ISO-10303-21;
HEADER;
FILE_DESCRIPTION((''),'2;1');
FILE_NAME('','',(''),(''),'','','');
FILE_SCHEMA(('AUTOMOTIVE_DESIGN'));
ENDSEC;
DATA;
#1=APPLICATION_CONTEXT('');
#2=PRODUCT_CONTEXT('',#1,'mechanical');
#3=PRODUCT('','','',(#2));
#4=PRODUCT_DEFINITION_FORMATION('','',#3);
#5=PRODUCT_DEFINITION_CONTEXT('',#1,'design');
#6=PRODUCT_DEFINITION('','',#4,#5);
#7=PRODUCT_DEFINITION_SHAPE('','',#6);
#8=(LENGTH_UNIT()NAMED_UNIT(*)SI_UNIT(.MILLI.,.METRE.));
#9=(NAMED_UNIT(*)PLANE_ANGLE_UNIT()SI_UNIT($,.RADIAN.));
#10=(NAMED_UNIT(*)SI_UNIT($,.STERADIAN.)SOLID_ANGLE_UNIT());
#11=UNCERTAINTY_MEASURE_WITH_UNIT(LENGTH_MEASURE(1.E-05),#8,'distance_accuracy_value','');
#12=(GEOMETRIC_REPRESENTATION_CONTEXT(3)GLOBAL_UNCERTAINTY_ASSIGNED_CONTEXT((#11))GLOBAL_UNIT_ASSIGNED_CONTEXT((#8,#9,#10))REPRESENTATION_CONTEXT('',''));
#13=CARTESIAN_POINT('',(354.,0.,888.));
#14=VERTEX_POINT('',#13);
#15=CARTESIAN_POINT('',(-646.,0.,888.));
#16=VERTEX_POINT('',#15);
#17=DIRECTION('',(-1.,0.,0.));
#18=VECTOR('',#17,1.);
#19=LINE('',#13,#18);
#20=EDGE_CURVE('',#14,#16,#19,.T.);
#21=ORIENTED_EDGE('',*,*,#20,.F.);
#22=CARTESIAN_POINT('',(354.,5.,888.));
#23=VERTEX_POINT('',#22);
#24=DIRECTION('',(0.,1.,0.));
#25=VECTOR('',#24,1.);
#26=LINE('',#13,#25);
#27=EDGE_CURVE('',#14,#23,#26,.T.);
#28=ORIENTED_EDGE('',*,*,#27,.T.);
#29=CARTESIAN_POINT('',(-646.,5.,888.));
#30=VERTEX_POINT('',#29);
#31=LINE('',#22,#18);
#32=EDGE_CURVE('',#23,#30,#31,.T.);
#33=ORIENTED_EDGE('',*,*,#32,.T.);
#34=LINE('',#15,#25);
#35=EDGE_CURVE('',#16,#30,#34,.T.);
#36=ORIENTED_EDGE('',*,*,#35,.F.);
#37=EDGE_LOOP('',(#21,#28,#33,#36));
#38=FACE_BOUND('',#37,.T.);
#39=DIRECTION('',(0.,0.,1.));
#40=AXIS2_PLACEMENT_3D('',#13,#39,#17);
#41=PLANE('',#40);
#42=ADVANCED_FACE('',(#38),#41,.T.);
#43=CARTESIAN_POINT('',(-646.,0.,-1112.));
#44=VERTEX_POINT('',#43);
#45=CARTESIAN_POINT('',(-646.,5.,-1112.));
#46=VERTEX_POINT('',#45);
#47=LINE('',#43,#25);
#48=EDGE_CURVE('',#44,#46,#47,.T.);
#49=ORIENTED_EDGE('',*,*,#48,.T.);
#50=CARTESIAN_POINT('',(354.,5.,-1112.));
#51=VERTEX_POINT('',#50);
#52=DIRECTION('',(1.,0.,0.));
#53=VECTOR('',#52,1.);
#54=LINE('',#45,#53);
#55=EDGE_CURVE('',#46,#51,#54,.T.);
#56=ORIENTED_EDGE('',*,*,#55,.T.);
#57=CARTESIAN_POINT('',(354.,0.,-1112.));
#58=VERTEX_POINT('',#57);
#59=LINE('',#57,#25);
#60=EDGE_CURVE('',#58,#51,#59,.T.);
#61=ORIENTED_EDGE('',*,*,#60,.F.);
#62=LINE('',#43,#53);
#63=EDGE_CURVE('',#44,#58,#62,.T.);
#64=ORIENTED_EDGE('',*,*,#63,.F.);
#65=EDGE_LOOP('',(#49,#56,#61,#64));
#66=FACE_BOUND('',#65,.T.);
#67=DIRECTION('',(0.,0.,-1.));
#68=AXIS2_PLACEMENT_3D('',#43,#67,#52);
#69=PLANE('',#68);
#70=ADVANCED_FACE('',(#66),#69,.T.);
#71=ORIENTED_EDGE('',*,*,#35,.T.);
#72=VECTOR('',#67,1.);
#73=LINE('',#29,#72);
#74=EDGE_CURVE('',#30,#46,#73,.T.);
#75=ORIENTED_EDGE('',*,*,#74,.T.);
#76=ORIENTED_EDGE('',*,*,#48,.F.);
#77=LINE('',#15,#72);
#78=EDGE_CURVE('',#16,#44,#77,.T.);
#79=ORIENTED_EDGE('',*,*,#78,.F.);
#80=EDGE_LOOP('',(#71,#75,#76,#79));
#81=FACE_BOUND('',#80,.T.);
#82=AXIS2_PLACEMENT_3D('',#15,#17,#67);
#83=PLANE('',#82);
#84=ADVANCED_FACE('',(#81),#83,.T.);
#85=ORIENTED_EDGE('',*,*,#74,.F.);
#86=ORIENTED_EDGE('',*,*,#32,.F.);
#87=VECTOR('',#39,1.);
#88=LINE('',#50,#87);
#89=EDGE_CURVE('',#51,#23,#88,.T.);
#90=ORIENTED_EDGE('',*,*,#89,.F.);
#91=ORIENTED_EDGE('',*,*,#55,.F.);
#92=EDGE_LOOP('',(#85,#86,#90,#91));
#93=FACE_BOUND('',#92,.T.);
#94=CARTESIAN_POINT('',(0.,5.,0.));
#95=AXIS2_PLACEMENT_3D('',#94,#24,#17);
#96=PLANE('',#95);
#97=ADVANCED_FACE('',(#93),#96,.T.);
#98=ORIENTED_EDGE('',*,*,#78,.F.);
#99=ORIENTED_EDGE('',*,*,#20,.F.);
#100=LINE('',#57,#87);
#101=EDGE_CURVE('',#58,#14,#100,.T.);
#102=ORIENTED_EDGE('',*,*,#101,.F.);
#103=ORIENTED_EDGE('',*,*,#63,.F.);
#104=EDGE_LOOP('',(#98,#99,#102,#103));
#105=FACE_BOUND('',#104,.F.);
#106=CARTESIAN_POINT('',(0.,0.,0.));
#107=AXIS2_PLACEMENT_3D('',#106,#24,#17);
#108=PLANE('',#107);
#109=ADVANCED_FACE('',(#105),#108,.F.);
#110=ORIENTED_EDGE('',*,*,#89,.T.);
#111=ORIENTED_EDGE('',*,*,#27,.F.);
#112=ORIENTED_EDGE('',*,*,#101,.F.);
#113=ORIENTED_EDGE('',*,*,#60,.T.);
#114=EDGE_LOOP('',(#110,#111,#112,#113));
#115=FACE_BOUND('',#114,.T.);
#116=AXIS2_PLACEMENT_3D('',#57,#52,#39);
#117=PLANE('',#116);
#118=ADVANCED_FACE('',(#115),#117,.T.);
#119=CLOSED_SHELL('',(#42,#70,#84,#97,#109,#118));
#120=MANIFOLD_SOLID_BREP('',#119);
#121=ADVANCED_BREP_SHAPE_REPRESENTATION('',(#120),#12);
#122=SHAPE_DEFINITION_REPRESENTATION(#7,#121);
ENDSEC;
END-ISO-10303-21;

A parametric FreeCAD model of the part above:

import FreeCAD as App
import Part
import Sketcher
from FreeCAD import Vector


def add_polygon(sketch, points):
    """Adds a closed chain of lines whose ends are joined by coincident constraints."""
    first, n = sketch.GeometryCount, len(points)
    for a, b in zip(points, points[1:] + points[:1]):
        sketch.addGeometry(Part.LineSegment(App.Vector(*a, 0), App.Vector(*b, 0)), False)
    for i in range(n):
        sketch.addConstraint(Sketcher.Constraint("Coincident", first + i, 2, first + (i + 1) % n, 1))

doc = App.newDocument("Part")
params = doc.addObject("Spreadsheet::Sheet", "Params")
for row, (alias, value) in enumerate([
    ("sketch1_width", "1000 mm"),
    ("sketch1_height", "2000 mm"),
    ("pad1_length", "5 mm"),
], start=1):
    params.set(f"A{row}", alias)
    params.set(f"B{row}", "=" + value)
    params.setAlias(f"B{row}", alias)

body = doc.addObject("PartDesign::Body", "Body")

sketch1 = body.newObject("Sketcher::SketchObject", "Sketch")
sketch1.AttachmentSupport = (doc.getObject("XZ_Plane"), [""])
sketch1.MapMode = "FlatFace"
add_polygon(sketch1, [(-646, 888), (354, 888), (354, -1112), (-646, -1112)])
sketch1.addConstraint(Sketcher.Constraint("Horizontal", 0))
sketch1.addConstraint(Sketcher.Constraint("Vertical", 1))
sketch1.addConstraint(Sketcher.Constraint("Horizontal", 2))
sketch1.addConstraint(Sketcher.Constraint("Vertical", 3))
sketch1.addConstraint(Sketcher.Constraint("DistanceX", 0, 1, 0, 2, 1000.0))
sketch1.addConstraint(Sketcher.Constraint("DistanceY", 1, 2, 1, 1, 2000.0))
sketch1.addConstraint(Sketcher.Constraint("DistanceX", -1, 1, 0, 2, 354.0))
sketch1.addConstraint(Sketcher.Constraint("DistanceY", -1, 1, 0, 2, 888.0))
sketch1.setExpression("Constraints[8]", "Params.sketch1_width")
sketch1.setExpression("Constraints[9]", "Params.sketch1_height")
pad1 = body.newObject("PartDesign::Pad", "Pad")
pad1.Profile = sketch1
pad1.setExpression("Length", "Params.pad1_length")
pad1.Reversed = True

doc.recompute()
